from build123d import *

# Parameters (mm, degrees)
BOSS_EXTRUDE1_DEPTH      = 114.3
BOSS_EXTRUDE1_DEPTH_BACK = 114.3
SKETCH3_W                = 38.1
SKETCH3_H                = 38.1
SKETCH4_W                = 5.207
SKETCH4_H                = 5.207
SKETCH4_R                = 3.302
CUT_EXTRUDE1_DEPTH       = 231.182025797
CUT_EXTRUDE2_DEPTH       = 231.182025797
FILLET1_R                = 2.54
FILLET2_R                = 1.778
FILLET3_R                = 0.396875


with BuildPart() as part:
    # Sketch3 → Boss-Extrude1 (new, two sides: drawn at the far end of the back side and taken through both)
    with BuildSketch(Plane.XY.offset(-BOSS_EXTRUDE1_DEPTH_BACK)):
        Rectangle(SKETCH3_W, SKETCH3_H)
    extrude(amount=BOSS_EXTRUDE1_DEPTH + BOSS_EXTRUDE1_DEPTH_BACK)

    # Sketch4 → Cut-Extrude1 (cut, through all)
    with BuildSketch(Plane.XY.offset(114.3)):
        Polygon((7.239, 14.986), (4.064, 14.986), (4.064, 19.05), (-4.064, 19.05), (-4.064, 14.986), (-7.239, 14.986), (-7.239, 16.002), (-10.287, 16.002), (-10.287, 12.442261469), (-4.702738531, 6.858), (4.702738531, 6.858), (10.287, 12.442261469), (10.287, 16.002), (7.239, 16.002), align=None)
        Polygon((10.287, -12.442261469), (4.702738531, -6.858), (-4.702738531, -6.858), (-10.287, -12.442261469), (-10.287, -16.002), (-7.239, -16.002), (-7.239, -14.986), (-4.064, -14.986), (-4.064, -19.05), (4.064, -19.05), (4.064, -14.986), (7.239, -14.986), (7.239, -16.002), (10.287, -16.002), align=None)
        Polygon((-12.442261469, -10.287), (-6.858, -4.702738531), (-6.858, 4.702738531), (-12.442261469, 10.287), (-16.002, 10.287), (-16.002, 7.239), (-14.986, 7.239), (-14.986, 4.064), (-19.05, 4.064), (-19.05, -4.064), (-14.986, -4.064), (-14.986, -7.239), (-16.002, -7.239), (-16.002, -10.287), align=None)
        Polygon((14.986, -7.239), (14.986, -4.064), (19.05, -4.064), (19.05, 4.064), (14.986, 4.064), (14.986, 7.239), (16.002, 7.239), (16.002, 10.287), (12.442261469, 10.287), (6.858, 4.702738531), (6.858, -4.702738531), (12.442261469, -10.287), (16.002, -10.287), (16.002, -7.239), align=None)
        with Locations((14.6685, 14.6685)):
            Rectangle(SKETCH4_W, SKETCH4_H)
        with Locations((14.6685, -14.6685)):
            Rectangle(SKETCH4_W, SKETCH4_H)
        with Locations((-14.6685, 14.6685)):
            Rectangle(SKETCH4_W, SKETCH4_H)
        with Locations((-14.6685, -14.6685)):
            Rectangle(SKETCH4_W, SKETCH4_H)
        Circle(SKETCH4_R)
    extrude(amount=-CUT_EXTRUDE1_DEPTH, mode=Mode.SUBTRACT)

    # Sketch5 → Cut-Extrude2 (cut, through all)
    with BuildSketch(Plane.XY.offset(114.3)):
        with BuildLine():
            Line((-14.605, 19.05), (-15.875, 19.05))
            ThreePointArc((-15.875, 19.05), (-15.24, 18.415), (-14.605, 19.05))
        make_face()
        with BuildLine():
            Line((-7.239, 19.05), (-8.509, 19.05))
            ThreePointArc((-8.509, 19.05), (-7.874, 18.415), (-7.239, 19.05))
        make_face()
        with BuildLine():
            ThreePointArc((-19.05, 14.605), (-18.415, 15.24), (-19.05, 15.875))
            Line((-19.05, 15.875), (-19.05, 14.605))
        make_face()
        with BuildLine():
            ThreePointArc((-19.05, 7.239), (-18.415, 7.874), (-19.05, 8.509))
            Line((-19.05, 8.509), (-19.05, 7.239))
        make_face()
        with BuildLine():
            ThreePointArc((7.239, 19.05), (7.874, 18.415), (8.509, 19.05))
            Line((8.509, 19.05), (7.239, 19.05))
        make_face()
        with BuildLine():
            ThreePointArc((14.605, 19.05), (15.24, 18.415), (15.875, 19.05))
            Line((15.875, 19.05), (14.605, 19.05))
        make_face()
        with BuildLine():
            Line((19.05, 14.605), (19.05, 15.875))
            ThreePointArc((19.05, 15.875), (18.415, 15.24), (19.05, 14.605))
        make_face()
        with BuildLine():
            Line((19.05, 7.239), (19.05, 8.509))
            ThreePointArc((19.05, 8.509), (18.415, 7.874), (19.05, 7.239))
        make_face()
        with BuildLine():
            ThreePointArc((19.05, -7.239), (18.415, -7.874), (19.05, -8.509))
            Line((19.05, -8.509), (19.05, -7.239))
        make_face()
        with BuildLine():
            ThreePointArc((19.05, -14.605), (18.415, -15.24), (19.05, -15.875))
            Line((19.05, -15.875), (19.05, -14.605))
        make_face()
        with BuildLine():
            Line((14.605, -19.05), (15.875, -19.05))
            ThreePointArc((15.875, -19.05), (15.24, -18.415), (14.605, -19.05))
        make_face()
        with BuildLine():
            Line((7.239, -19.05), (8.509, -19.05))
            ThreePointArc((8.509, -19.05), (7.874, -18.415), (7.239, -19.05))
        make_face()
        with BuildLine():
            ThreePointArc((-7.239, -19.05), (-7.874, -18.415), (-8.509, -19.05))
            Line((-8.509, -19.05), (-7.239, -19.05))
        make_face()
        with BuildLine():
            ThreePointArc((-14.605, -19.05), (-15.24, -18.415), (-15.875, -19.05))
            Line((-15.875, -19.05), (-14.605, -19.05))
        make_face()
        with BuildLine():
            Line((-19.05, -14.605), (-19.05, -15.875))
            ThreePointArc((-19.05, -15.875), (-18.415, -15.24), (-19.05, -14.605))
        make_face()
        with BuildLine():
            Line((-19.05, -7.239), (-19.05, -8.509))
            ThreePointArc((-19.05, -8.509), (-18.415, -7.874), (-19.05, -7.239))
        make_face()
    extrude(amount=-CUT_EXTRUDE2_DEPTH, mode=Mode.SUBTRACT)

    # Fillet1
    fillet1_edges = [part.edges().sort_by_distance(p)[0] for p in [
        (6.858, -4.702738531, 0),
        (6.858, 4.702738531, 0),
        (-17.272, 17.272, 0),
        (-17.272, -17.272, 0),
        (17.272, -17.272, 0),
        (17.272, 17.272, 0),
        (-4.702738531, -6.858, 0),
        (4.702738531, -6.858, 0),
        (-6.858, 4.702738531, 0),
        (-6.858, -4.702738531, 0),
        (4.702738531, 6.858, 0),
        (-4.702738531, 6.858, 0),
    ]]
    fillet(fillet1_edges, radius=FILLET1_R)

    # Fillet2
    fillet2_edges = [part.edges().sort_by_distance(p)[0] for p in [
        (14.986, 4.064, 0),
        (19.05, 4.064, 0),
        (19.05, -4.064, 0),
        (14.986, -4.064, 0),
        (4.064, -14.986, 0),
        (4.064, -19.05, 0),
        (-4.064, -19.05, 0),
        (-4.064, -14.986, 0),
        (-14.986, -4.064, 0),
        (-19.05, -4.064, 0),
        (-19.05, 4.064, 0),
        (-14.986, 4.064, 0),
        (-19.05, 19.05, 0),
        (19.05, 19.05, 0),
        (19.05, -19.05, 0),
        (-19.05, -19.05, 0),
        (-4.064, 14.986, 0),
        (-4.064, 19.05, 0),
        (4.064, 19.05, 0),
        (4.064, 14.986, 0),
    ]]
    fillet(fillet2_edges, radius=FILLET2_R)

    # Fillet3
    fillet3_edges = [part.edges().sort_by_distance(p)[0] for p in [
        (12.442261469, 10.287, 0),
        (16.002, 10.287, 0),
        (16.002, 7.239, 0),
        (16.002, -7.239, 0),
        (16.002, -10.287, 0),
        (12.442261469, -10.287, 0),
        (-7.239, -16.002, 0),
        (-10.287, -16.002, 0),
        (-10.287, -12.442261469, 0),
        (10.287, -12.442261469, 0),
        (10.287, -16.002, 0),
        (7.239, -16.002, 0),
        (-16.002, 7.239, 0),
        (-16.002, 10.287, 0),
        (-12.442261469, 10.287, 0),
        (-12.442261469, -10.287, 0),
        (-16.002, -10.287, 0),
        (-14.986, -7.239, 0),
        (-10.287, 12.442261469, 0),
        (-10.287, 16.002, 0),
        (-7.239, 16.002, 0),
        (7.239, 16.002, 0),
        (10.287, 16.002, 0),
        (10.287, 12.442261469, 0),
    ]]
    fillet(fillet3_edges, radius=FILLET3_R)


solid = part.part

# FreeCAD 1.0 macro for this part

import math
import FreeCAD as App
import Part
import Sketcher

V = App.Vector
Q = App.Units.Quantity


def edges_at(feature, points):
    """Names of the edges that pass closest to the given points."""
    edges = feature.Shape.Edges
    near = lambda p: min(range(len(edges)), key=lambda i: edges[i].distToShape(Part.Vertex(*p))[0])
    return sorted({f"Edge{near(p) + 1}" for p in points})


def add_polygon(sketch, points):
    """Adds a closed chain of lines whose ends are joined by coincident constraints."""
    first, n = sketch.GeometryCount, len(points)
    for a, b in zip(points, points[1:] + points[:1]):
        sketch.addGeometry(Part.LineSegment(App.Vector(*a, 0), App.Vector(*b, 0)), False)
    for i in range(n):
        sketch.addConstraint(Sketcher.Constraint("Coincident", first + i, 2, first + (i + 1) % n, 1))

doc = App.newDocument("Part")
params = doc.addObject("Spreadsheet::Sheet", "Params")
for row, (alias, value) in enumerate([
    ("sketch1_width", "1.5 in"),
    ("pad1_length", "4.5 in"),
    ("pad1_length2", "4.5 in"),
    ("sketch2_diameter", "0.26 in"),
    ("sketch2_width", "0.32 in"),
    ("sketch2_width2", "0.12 in"),
    ("sketch2_width3", "0.04 in"),
    ("sketch2_width4", "0.16 in"),
    ("sketch3_radius", "0.025 in"),
    ("fillet_radius", "0.1 in"),
    ("fillet2_radius", "0.07 in"),
    ("fillet3_radius", "0.015625 in"),
], start=1):
    params.set(f"A{row}", alias)
    params.set(f"B{row}", "=" + value)
    params.setAlias(f"B{row}", alias)

body = doc.addObject("PartDesign::Body", "Body")

sketch1 = body.newObject("Sketcher::SketchObject", "Sketch")
sketch1.AttachmentSupport = (doc.getObject("XY_Plane"), [""])
sketch1.MapMode = "FlatFace"
add_polygon(sketch1, [(-19.05, 19.05), (-19.05, -19.05), (19.05, -19.05), (19.05, 19.05)])
sketch1.addConstraint(Sketcher.Constraint("Vertical", 0))
sketch1.addConstraint(Sketcher.Constraint("Horizontal", 1))
sketch1.addConstraint(Sketcher.Constraint("Vertical", 2))
sketch1.addConstraint(Sketcher.Constraint("Horizontal", 3))
sketch1.addConstraint(Sketcher.Constraint("Symmetric", 0, 2, 2, 2, -1, 1))
sketch1.addConstraint(Sketcher.Constraint("Equal", 3, 0))
sketch1.addConstraint(Sketcher.Constraint("DistanceX", 1, 1, 1, 2, Q("1.5 in")))
sketch1.setExpression("Constraints[10]", "Params.sketch1_width")
pad1 = body.newObject("PartDesign::Pad", "Pad")
pad1.Profile = sketch1
pad1.Type = "TwoLengths"
pad1.setExpression("Length", "Params.pad1_length")
pad1.setExpression("Length2", "Params.pad1_length2")

sketch2 = body.newObject("Sketcher::SketchObject", "Sketch001")
sketch2.AttachmentSupport = (doc.getObject("XY_Plane"), [""])
sketch2.MapMode = "FlatFace"
sketch2.AttachmentOffset = App.Placement(V(0, 0, 4.5 * 25.4), App.Rotation())
add_polygon(sketch2, [(7.239, 14.986), (4.064, 14.986), (4.064, 19.05), (-4.064, 19.05), (-4.064, 14.986), (-7.239, 14.986), (-7.239, 16.002), (-10.287, 16.002), (-10.287, 12.442261), (-4.702739, 6.858), (4.702739, 6.858), (10.287, 12.442261), (10.287, 16.002), (7.239, 16.002)])
add_polygon(sketch2, [(10.287, -12.442261), (4.702739, -6.858), (-4.702739, -6.858), (-10.287, -12.442261), (-10.287, -16.002), (-7.239, -16.002), (-7.239, -14.986), (-4.064, -14.986), (-4.064, -19.05), (4.064, -19.05), (4.064, -14.986), (7.239, -14.986), (7.239, -16.002), (10.287, -16.002)])
add_polygon(sketch2, [(-12.442261, -10.287), (-6.858, -4.702739), (-6.858, 4.702739), (-12.442261, 10.287), (-16.002, 10.287), (-16.002, 7.239), (-14.986, 7.239), (-14.986, 4.064), (-19.05, 4.064), (-19.05, -4.064), (-14.986, -4.064), (-14.986, -7.239), (-16.002, -7.239), (-16.002, -10.287)])
add_polygon(sketch2, [(14.986, -7.239), (14.986, -4.064), (19.05, -4.064), (19.05, 4.064), (14.986, 4.064), (14.986, 7.239), (16.002, 7.239), (16.002, 10.287), (12.442261, 10.287), (6.858, 4.702739), (6.858, -4.702739), (12.442261, -10.287), (16.002, -10.287), (16.002, -7.239)])
add_polygon(sketch2, [(12.065, 17.272), (12.065, 12.065), (17.272, 12.065), (17.272, 17.272)])
add_polygon(sketch2, [(12.065, -12.065), (12.065, -17.272), (17.272, -17.272), (17.272, -12.065)])
add_polygon(sketch2, [(-17.272, 17.272), (-17.272, 12.065), (-12.065, 12.065), (-12.065, 17.272)])
add_polygon(sketch2, [(-17.272, -12.065), (-17.272, -17.272), (-12.065, -17.272), (-12.065, -12.065)])
sketch2.addGeometry(Part.Circle(V(0, 0, 0), V(0, 0, 1), 3.302), False)
sketch2.addConstraint(Sketcher.Constraint("Horizontal", 0))
sketch2.addConstraint(Sketcher.Constraint("Vertical", 1))
sketch2.addConstraint(Sketcher.Constraint("Horizontal", 2))
sketch2.addConstraint(Sketcher.Constraint("Vertical", 3))
sketch2.addConstraint(Sketcher.Constraint("Horizontal", 4))
sketch2.addConstraint(Sketcher.Constraint("Vertical", 5))
sketch2.addConstraint(Sketcher.Constraint("Horizontal", 6))
sketch2.addConstraint(Sketcher.Constraint("Vertical", 7))
sketch2.addConstraint(Sketcher.Constraint("Horizontal", 9))
sketch2.addConstraint(Sketcher.Constraint("Vertical", 11))
sketch2.addConstraint(Sketcher.Constraint("Horizontal", 12))
sketch2.addConstraint(Sketcher.Constraint("Vertical", 13))
sketch2.addConstraint(Sketcher.Constraint("Horizontal", 15))
sketch2.addConstraint(Sketcher.Constraint("Vertical", 17))
sketch2.addConstraint(Sketcher.Constraint("Horizontal", 18))
sketch2.addConstraint(Sketcher.Constraint("Vertical", 19))
sketch2.addConstraint(Sketcher.Constraint("Horizontal", 20))
sketch2.addConstraint(Sketcher.Constraint("Vertical", 21))
sketch2.addConstraint(Sketcher.Constraint("Horizontal", 22))
sketch2.addConstraint(Sketcher.Constraint("Vertical", 23))
sketch2.addConstraint(Sketcher.Constraint("Horizontal", 24))
sketch2.addConstraint(Sketcher.Constraint("Vertical", 25))
sketch2.addConstraint(Sketcher.Constraint("Horizontal", 26))
sketch2.addConstraint(Sketcher.Constraint("Vertical", 27))
sketch2.addConstraint(Sketcher.Constraint("Vertical", 29))
sketch2.addConstraint(Sketcher.Constraint("Horizontal", 31))
sketch2.addConstraint(Sketcher.Constraint("Vertical", 32))
sketch2.addConstraint(Sketcher.Constraint("Horizontal", 33))
sketch2.addConstraint(Sketcher.Constraint("Vertical", 34))
sketch2.addConstraint(Sketcher.Constraint("Horizontal", 35))
sketch2.addConstraint(Sketcher.Constraint("Vertical", 36))
sketch2.addConstraint(Sketcher.Constraint("Horizontal", 37))
sketch2.addConstraint(Sketcher.Constraint("Vertical", 38))
sketch2.addConstraint(Sketcher.Constraint("Horizontal", 39))
sketch2.addConstraint(Sketcher.Constraint("Vertical", 40))
sketch2.addConstraint(Sketcher.Constraint("Horizontal", 41))
sketch2.addConstraint(Sketcher.Constraint("Vertical", 42))
sketch2.addConstraint(Sketcher.Constraint("Horizontal", 43))
sketch2.addConstraint(Sketcher.Constraint("Vertical", 44))
sketch2.addConstraint(Sketcher.Constraint("Horizontal", 45))
sketch2.addConstraint(Sketcher.Constraint("Vertical", 46))
sketch2.addConstraint(Sketcher.Constraint("Horizontal", 47))
sketch2.addConstraint(Sketcher.Constraint("Vertical", 48))
sketch2.addConstraint(Sketcher.Constraint("Horizontal", 49))
sketch2.addConstraint(Sketcher.Constraint("Vertical", 51))
sketch2.addConstraint(Sketcher.Constraint("Horizontal", 53))
sketch2.addConstraint(Sketcher.Constraint("Vertical", 54))
sketch2.addConstraint(Sketcher.Constraint("Horizontal", 55))
sketch2.addConstraint(Sketcher.Constraint("Vertical", 56))
sketch2.addConstraint(Sketcher.Constraint("Horizontal", 57))
sketch2.addConstraint(Sketcher.Constraint("Vertical", 58))
sketch2.addConstraint(Sketcher.Constraint("Horizontal", 59))
sketch2.addConstraint(Sketcher.Constraint("Vertical", 60))
sketch2.addConstraint(Sketcher.Constraint("Horizontal", 61))
sketch2.addConstraint(Sketcher.Constraint("Vertical", 62))
sketch2.addConstraint(Sketcher.Constraint("Horizontal", 63))
sketch2.addConstraint(Sketcher.Constraint("Vertical", 64))
sketch2.addConstraint(Sketcher.Constraint("Horizontal", 65))
sketch2.addConstraint(Sketcher.Constraint("Vertical", 66))
sketch2.addConstraint(Sketcher.Constraint("Horizontal", 67))
sketch2.addConstraint(Sketcher.Constraint("Vertical", 68))
sketch2.addConstraint(Sketcher.Constraint("Horizontal", 69))
sketch2.addConstraint(Sketcher.Constraint("Vertical", 70))
sketch2.addConstraint(Sketcher.Constraint("Horizontal", 71))
sketch2.addConstraint(Sketcher.Constraint("Coincident", 72, 3, -1, 1))
sketch2.addConstraint(Sketcher.Constraint("Symmetric", 8, 2, 14, 2, -1, 1))
sketch2.addConstraint(Sketcher.Constraint("Symmetric", 10, 2, 16, 2, -1, 1))
sketch2.addConstraint(Sketcher.Constraint("Symmetric", 12, 2, 18, 2, -1, 1))
sketch2.addConstraint(Sketcher.Constraint("Symmetric", 0, 2, 20, 2, -1, 1))
sketch2.addConstraint(Sketcher.Constraint("Symmetric", 2, 2, 22, 2, -1, 1))
sketch2.addConstraint(Sketcher.Constraint("Symmetric", 4, 2, 24, 2, -1, 1))
sketch2.addConstraint(Sketcher.Constraint("Symmetric", 6, 2, 26, 2, -1, 1))
sketch2.addConstraint(Sketcher.Constraint("Symmetric", 34, 2, 42, 2, -1, 1))
sketch2.addConstraint(Sketcher.Constraint("Symmetric", 36, 2, 44, 2, -1, 1))
sketch2.addConstraint(Sketcher.Constraint("Symmetric", 38, 2, 46, 2, -1, 1))
sketch2.addConstraint(Sketcher.Constraint("Symmetric", 40, 2, 48, 2, -1, 1))
sketch2.addConstraint(Sketcher.Constraint("Symmetric", 28, 2, 50, 2, -1, 1))
sketch2.addConstraint(Sketcher.Constraint("Symmetric", 30, 2, 52, 2, -1, 1))
sketch2.addConstraint(Sketcher.Constraint("Symmetric", 32, 2, 54, 2, -1, 1))
sketch2.addConstraint(Sketcher.Constraint("Symmetric", 62, 2, 64, 2, -1, 1))
sketch2.addConstraint(Sketcher.Constraint("Symmetric", 60, 2, 66, 2, -1, 1))
sketch2.addConstraint(Sketcher.Constraint("Symmetric", 58, 2, 68, 2, -1, 1))
sketch2.addConstraint(Sketcher.Constraint("Symmetric", 56, 2, 70, 2, -1, 1))
sketch2.addConstraint(Sketcher.Constraint("Symmetric", 0, 2, 3, 2, -2))
sketch2.addConstraint(Sketcher.Constraint("Symmetric", 7, 2, 10, 2, -2))
sketch2.addConstraint(Sketcher.Constraint("Symmetric", 5, 2, 12, 2, -2))
sketch2.addConstraint(Sketcher.Constraint("Symmetric", 37, 2, 42, 2, -2))
sketch2.addConstraint(Sketcher.Constraint("Symmetric", 32, 2, 47, 2, -2))
sketch2.addConstraint(Sketcher.Constraint("Symmetric", 30, 2, 49, 2, -2))
sketch2.addConstraint(Sketcher.Constraint("Symmetric", 57, 2, 64, 2, -2))
sketch2.addConstraint(Sketcher.Constraint("Symmetric", 59, 2, 66, 2, -2))
sketch2.addConstraint(Sketcher.Constraint("Perpendicular", 8, 10))
sketch2.addConstraint(Sketcher.Constraint("Perpendicular", 10, 14))
sketch2.addConstraint(Sketcher.Constraint("Perpendicular", 14, 16))
sketch2.addConstraint(Sketcher.Constraint("Parallel", 16, 28))
sketch2.addConstraint(Sketcher.Constraint("Perpendicular", 28, 30))
sketch2.addConstraint(Sketcher.Constraint("Perpendicular", 30, 50))
sketch2.addConstraint(Sketcher.Constraint("Perpendicular", 50, 52))
sketch2.addConstraint(Sketcher.Constraint("Horizontal", 29, 2, 50, 2))
sketch2.addConstraint(Sketcher.Constraint("Equal", 45, 1))
sketch2.addConstraint(Sketcher.Constraint("Equal", 55, 5))
sketch2.addConstraint(Sketcher.Constraint("Equal", 53, 7))
sketch2.addConstraint(Sketcher.Constraint("Equal", 15, 29))
sketch2.addConstraint(Sketcher.Constraint("Equal", 26, 32))
sketch2.addConstraint(Sketcher.Constraint("Equal", 24, 34))
sketch2.addConstraint(Sketcher.Constraint("Equal", 22, 36))
sketch2.addConstraint(Sketcher.Constraint("Equal", 71, 56))
sketch2.addConstraint(Sketcher.Constraint("Diameter", 72, Q("0.26 in")))
sketch2.addConstraint(Sketcher.Constraint("DistanceX", 2, 2, 2, 1, Q("0.32 in")))
sketch2.addConstraint(Sketcher.Constraint("DistanceX", 6, 2, 6, 1, Q("0.12 in")))
sketch2.addConstraint(Sketcher.Constraint("DistanceX", 33, 1, 33, 2, Q("0.04 in")))
sketch2.addConstraint(Sketcher.Constraint("DistanceX", 35, 2, 35, 1, Q("0.16 in")))
sketch2.addConstraint(Sketcher.Constraint("DistanceX", 0, 2, 0, 1, Q("0.125 in")))
sketch2.addConstraint(Sketcher.Constraint("DistanceX", 57, 1, 57, 2, Q("0.205 in")))
sketch2.addConstraint(Sketcher.Constraint("DistanceY", -1, 1, 0, 2, Q("0.59 in")))
sketch2.addConstraint(Sketcher.Constraint("DistanceY", -1, 1, 8, 2, Q("0.27 in")))
sketch2.addConstraint(Sketcher.Constraint("DistanceX", 28, 2, -1, 1, Q("0.27 in")))
sketch2.addConstraint(Sketcher.Constraint("DistanceX", -1, 1, 57, 2, Q("0.68 in")))
sketch2.addConstraint(Sketcher.Constraint("DistanceY", -1, 1, 58, 2, Q("0.68 in")))
sketch2.addConstraint(Sketcher.Constraint("DistanceX", 31, 2, 31, 1, 3.559739))
sketch2.setExpression("Constraints[179]", "Params.sketch2_diameter")
sketch2.setExpression("Constraints[180]", "Params.sketch2_width")
sketch2.setExpression("Constraints[181]", "Params.sketch2_width2")
sketch2.setExpression("Constraints[182]", "Params.sketch2_width3")
sketch2.setExpression("Constraints[183]", "Params.sketch2_width4")
pocket1 = body.newObject("PartDesign::Pocket", "Pocket")
pocket1.Profile = sketch2
pocket1.Type = "ThroughAll"

sketch3 = body.newObject("Sketcher::SketchObject", "Sketch002")
sketch3.AttachmentSupport = (doc.getObject("XY_Plane"), [""])
sketch3.MapMode = "FlatFace"
sketch3.AttachmentOffset = App.Placement(V(0, 0, 4.5 * 25.4), App.Rotation())
sketch3.addGeometry(Part.LineSegment(V(-14.605, 19.05, 0), V(-15.875, 19.05, 0)), False)
sketch3.addGeometry(Part.ArcOfCircle(Part.Circle(V(-15.24, 19.05, 0), V(0, 0, 1), 0.635), math.radians(180), math.radians(360)), False)
sketch3.addGeometry(Part.LineSegment(V(-7.239, 19.05, 0), V(-8.509, 19.05, 0)), False)
sketch3.addGeometry(Part.ArcOfCircle(Part.Circle(V(-7.874, 19.05, 0), V(0, 0, 1), 0.635), math.radians(180), math.radians(360)), False)
sketch3.addGeometry(Part.ArcOfCircle(Part.Circle(V(-19.05, 15.24, 0), V(0, 0, 1), 0.635), math.radians(-90), math.radians(90)), False)
sketch3.addGeometry(Part.LineSegment(V(-19.05, 15.875, 0), V(-19.05, 14.605, 0)), False)
sketch3.addGeometry(Part.ArcOfCircle(Part.Circle(V(-19.05, 7.874, 0), V(0, 0, 1), 0.635), math.radians(-90), math.radians(90)), False)
sketch3.addGeometry(Part.LineSegment(V(-19.05, 8.509, 0), V(-19.05, 7.239, 0)), False)
sketch3.addGeometry(Part.ArcOfCircle(Part.Circle(V(7.874, 19.05, 0), V(0, 0, 1), 0.635), math.radians(180), math.radians(360)), False)
sketch3.addGeometry(Part.LineSegment(V(8.509, 19.05, 0), V(7.239, 19.05, 0)), False)
sketch3.addGeometry(Part.ArcOfCircle(Part.Circle(V(15.24, 19.05, 0), V(0, 0, 1), 0.635), math.radians(180), math.radians(360)), False)
sketch3.addGeometry(Part.LineSegment(V(15.875, 19.05, 0), V(14.605, 19.05, 0)), False)
sketch3.addGeometry(Part.LineSegment(V(19.05, 14.605, 0), V(19.05, 15.875, 0)), False)
sketch3.addGeometry(Part.ArcOfCircle(Part.Circle(V(19.05, 15.24, 0), V(0, 0, 1), 0.635), math.radians(90), math.radians(270)), False)
sketch3.addGeometry(Part.LineSegment(V(19.05, 7.239, 0), V(19.05, 8.509, 0)), False)
sketch3.addGeometry(Part.ArcOfCircle(Part.Circle(V(19.05, 7.874, 0), V(0, 0, 1), 0.635), math.radians(90), math.radians(270)), False)
sketch3.addGeometry(Part.ArcOfCircle(Part.Circle(V(19.05, -7.874, 0), V(0, 0, 1), 0.635), math.radians(90), math.radians(270)), False)
sketch3.addGeometry(Part.LineSegment(V(19.05, -8.509, 0), V(19.05, -7.239, 0)), False)
sketch3.addGeometry(Part.ArcOfCircle(Part.Circle(V(19.05, -15.24, 0), V(0, 0, 1), 0.635), math.radians(90), math.radians(270)), False)
sketch3.addGeometry(Part.LineSegment(V(19.05, -15.875, 0), V(19.05, -14.605, 0)), False)
sketch3.addGeometry(Part.LineSegment(V(14.605, -19.05, 0), V(15.875, -19.05, 0)), False)
sketch3.addGeometry(Part.ArcOfCircle(Part.Circle(V(15.24, -19.05, 0), V(0, 0, 1), 0.635), math.radians(0), math.radians(180)), False)
sketch3.addGeometry(Part.LineSegment(V(7.239, -19.05, 0), V(8.509, -19.05, 0)), False)
sketch3.addGeometry(Part.ArcOfCircle(Part.Circle(V(7.874, -19.05, 0), V(0, 0, 1), 0.635), math.radians(0), math.radians(180)), False)
sketch3.addGeometry(Part.ArcOfCircle(Part.Circle(V(-7.874, -19.05, 0), V(0, 0, 1), 0.635), math.radians(0), math.radians(180)), False)
sketch3.addGeometry(Part.LineSegment(V(-8.509, -19.05, 0), V(-7.239, -19.05, 0)), False)
sketch3.addGeometry(Part.ArcOfCircle(Part.Circle(V(-15.24, -19.05, 0), V(0, 0, 1), 0.635), math.radians(0), math.radians(180)), False)
sketch3.addGeometry(Part.LineSegment(V(-15.875, -19.05, 0), V(-14.605, -19.05, 0)), False)
sketch3.addGeometry(Part.LineSegment(V(-19.05, -14.605, 0), V(-19.05, -15.875, 0)), False)
sketch3.addGeometry(Part.ArcOfCircle(Part.Circle(V(-19.05, -15.24, 0), V(0, 0, 1), 0.635), math.radians(-90), math.radians(90)), False)
sketch3.addGeometry(Part.LineSegment(V(-19.05, -7.239, 0), V(-19.05, -8.509, 0)), False)
sketch3.addGeometry(Part.ArcOfCircle(Part.Circle(V(-19.05, -7.874, 0), V(0, 0, 1), 0.635), math.radians(-90), math.radians(90)), False)
sketch3.addConstraint(Sketcher.Constraint("Coincident", 0, 1, 1, 2))
sketch3.addConstraint(Sketcher.Constraint("Coincident", 1, 1, 0, 2))
sketch3.addConstraint(Sketcher.Constraint("Coincident", 2, 1, 3, 2))
sketch3.addConstraint(Sketcher.Constraint("Coincident", 3, 1, 2, 2))
sketch3.addConstraint(Sketcher.Constraint("Coincident", 4, 1, 5, 2))
sketch3.addConstraint(Sketcher.Constraint("Coincident", 5, 1, 4, 2))
sketch3.addConstraint(Sketcher.Constraint("Coincident", 6, 1, 7, 2))
sketch3.addConstraint(Sketcher.Constraint("Coincident", 7, 1, 6, 2))
sketch3.addConstraint(Sketcher.Constraint("Coincident", 8, 1, 9, 2))
sketch3.addConstraint(Sketcher.Constraint("Coincident", 9, 1, 8, 2))
sketch3.addConstraint(Sketcher.Constraint("Coincident", 10, 1, 11, 2))
sketch3.addConstraint(Sketcher.Constraint("Coincident", 11, 1, 10, 2))
sketch3.addConstraint(Sketcher.Constraint("Coincident", 12, 1, 13, 2))
sketch3.addConstraint(Sketcher.Constraint("Coincident", 13, 1, 12, 2))
sketch3.addConstraint(Sketcher.Constraint("Coincident", 14, 1, 15, 2))
sketch3.addConstraint(Sketcher.Constraint("Coincident", 15, 1, 14, 2))
sketch3.addConstraint(Sketcher.Constraint("Coincident", 16, 1, 17, 2))
sketch3.addConstraint(Sketcher.Constraint("Coincident", 17, 1, 16, 2))
sketch3.addConstraint(Sketcher.Constraint("Coincident", 18, 1, 19, 2))
sketch3.addConstraint(Sketcher.Constraint("Coincident", 19, 1, 18, 2))
sketch3.addConstraint(Sketcher.Constraint("Coincident", 20, 1, 21, 2))
sketch3.addConstraint(Sketcher.Constraint("Coincident", 21, 1, 20, 2))
sketch3.addConstraint(Sketcher.Constraint("Coincident", 22, 1, 23, 2))
sketch3.addConstraint(Sketcher.Constraint("Coincident", 23, 1, 22, 2))
sketch3.addConstraint(Sketcher.Constraint("Coincident", 24, 1, 25, 2))
sketch3.addConstraint(Sketcher.Constraint("Coincident", 25, 1, 24, 2))
sketch3.addConstraint(Sketcher.Constraint("Coincident", 26, 1, 27, 2))
sketch3.addConstraint(Sketcher.Constraint("Coincident", 27, 1, 26, 2))
sketch3.addConstraint(Sketcher.Constraint("Coincident", 28, 1, 29, 2))
sketch3.addConstraint(Sketcher.Constraint("Coincident", 29, 1, 28, 2))
sketch3.addConstraint(Sketcher.Constraint("Coincident", 30, 1, 31, 2))
sketch3.addConstraint(Sketcher.Constraint("Coincident", 31, 1, 30, 2))
sketch3.addConstraint(Sketcher.Constraint("Horizontal", 0))
sketch3.addConstraint(Sketcher.Constraint("Horizontal", 2))
sketch3.addConstraint(Sketcher.Constraint("Vertical", 5))
sketch3.addConstraint(Sketcher.Constraint("Vertical", 7))
sketch3.addConstraint(Sketcher.Constraint("Horizontal", 9))
sketch3.addConstraint(Sketcher.Constraint("Horizontal", 11))
sketch3.addConstraint(Sketcher.Constraint("Vertical", 12))
sketch3.addConstraint(Sketcher.Constraint("Vertical", 14))
sketch3.addConstraint(Sketcher.Constraint("Vertical", 17))
sketch3.addConstraint(Sketcher.Constraint("Vertical", 19))
sketch3.addConstraint(Sketcher.Constraint("Horizontal", 20))
sketch3.addConstraint(Sketcher.Constraint("Horizontal", 22))
sketch3.addConstraint(Sketcher.Constraint("Horizontal", 25))
sketch3.addConstraint(Sketcher.Constraint("Horizontal", 27))
sketch3.addConstraint(Sketcher.Constraint("Vertical", 28))
sketch3.addConstraint(Sketcher.Constraint("Vertical", 30))
sketch3.addConstraint(Sketcher.Constraint("Equal", 1, 3))
sketch3.addConstraint(Sketcher.Constraint("Equal", 3, 4))
sketch3.addConstraint(Sketcher.Constraint("Equal", 4, 6))
sketch3.addConstraint(Sketcher.Constraint("Equal", 6, 8))
sketch3.addConstraint(Sketcher.Constraint("Equal", 8, 10))
sketch3.addConstraint(Sketcher.Constraint("Equal", 10, 13))
sketch3.addConstraint(Sketcher.Constraint("Equal", 13, 15))
sketch3.addConstraint(Sketcher.Constraint("Equal", 15, 16))
sketch3.addConstraint(Sketcher.Constraint("Equal", 16, 18))
sketch3.addConstraint(Sketcher.Constraint("Equal", 18, 21))
sketch3.addConstraint(Sketcher.Constraint("Equal", 21, 23))
sketch3.addConstraint(Sketcher.Constraint("Equal", 23, 24))
sketch3.addConstraint(Sketcher.Constraint("Equal", 24, 26))
sketch3.addConstraint(Sketcher.Constraint("Equal", 26, 29))
sketch3.addConstraint(Sketcher.Constraint("Equal", 29, 31))
sketch3.addConstraint(Sketcher.Constraint("Symmetric", 6, 3, 16, 3, -1, 1))
sketch3.addConstraint(Sketcher.Constraint("Symmetric", 4, 3, 18, 3, -1, 1))
sketch3.addConstraint(Sketcher.Constraint("Symmetric", 1, 3, 21, 3, -1, 1))
sketch3.addConstraint(Sketcher.Constraint("Symmetric", 3, 3, 23, 3, -1, 1))
sketch3.addConstraint(Sketcher.Constraint("Symmetric", 8, 3, 24, 3, -1, 1))
sketch3.addConstraint(Sketcher.Constraint("Symmetric", 10, 3, 26, 3, -1, 1))
sketch3.addConstraint(Sketcher.Constraint("Symmetric", 13, 3, 29, 3, -1, 1))
sketch3.addConstraint(Sketcher.Constraint("Symmetric", 15, 3, 31, 3, -1, 1))
sketch3.addConstraint(Sketcher.Constraint("Symmetric", 3, 3, 8, 3, -2))
sketch3.addConstraint(Sketcher.Constraint("Symmetric", 1, 3, 10, 3, -2))
sketch3.addConstraint(Sketcher.Constraint("Symmetric", 4, 3, 13, 3, -2))
sketch3.addConstraint(Sketcher.Constraint("Symmetric", 6, 3, 15, 3, -2))
sketch3.addConstraint(Sketcher.Constraint("Horizontal", 1, 3, 3, 3))
sketch3.addConstraint(Sketcher.Constraint("Horizontal", 10, 3, 0, 1))
sketch3.addConstraint(Sketcher.Constraint("Horizontal", 1, 1, 2, 1))
sketch3.addConstraint(Sketcher.Constraint("Horizontal", 3, 1, 8, 1))
sketch3.addConstraint(Sketcher.Constraint("Horizontal", 9, 1, 10, 1))
sketch3.addConstraint(Sketcher.Constraint("Horizontal", 26, 3, 20, 1))
sketch3.addConstraint(Sketcher.Constraint("Horizontal", 21, 1, 22, 1))
sketch3.addConstraint(Sketcher.Constraint("Horizontal", 23, 1, 24, 1))
sketch3.addConstraint(Sketcher.Constraint("Horizontal", 25, 1, 26, 1))
sketch3.addConstraint(Sketcher.Constraint("Vertical", 4, 3, 6, 3))
sketch3.addConstraint(Sketcher.Constraint("Vertical", 31, 3, 4, 1))
sketch3.addConstraint(Sketcher.Constraint("Vertical", 5, 1, 6, 1))
sketch3.addConstraint(Sketcher.Constraint("Vertical", 18, 3, 12, 1))
sketch3.addConstraint(Sketcher.Constraint("Vertical", 13, 1, 14, 1))
sketch3.addConstraint(Sketcher.Constraint("Vertical", 15, 1, 16, 1))
sketch3.addConstraint(Sketcher.Constraint("Vertical", 17, 1, 18, 1))
sketch3.addConstraint(Sketcher.Constraint("Vertical", 7, 1, 28, 1))
sketch3.addConstraint(Sketcher.Constraint("Vertical", 29, 1, 30, 1))
sketch3.addConstraint(Sketcher.Constraint("Radius", 1, Q("0.025 in")))
sketch3.addConstraint(Sketcher.Constraint("DistanceX", 1, 3, -1, 1, Q("0.6 in")))
sketch3.addConstraint(Sketcher.Constraint("DistanceY", -1, 1, 4, 3, Q("0.6 in")))
sketch3.addConstraint(Sketcher.Constraint("DistanceX", 4, 3, 13, 3, Q("1.5 in")))
sketch3.addConstraint(Sketcher.Constraint("DistanceY", 21, 3, 10, 3, Q("1.5 in")))
sketch3.addConstraint(Sketcher.Constraint("DistanceX", 3, 3, -1, 1, Q("0.31 in")))
sketch3.addConstraint(Sketcher.Constraint("DistanceY", -1, 1, 6, 3, Q("0.31 in")))
sketch3.setExpression("Constraints[93]", "Params.sketch3_radius")
pocket2 = body.newObject("PartDesign::Pocket", "Pocket001")
pocket2.Profile = sketch3
pocket2.Type = "ThroughAll"
doc.recompute()

fillet = body.newObject("PartDesign::Fillet", "Fillet")
fillet.Base = (pocket2, edges_at(pocket2, [
    (6.858, -4.703, 0),
    (6.858, 4.703, 0),
    (-17.272, 17.272, 0),
    (-17.272, -17.272, 0),
    (17.272, -17.272, 0),
    (17.272, 17.272, 0),
    (-4.703, -6.858, 0),
    (4.703, -6.858, 0),
    (-6.858, 4.703, 0),
    (-6.858, -4.703, 0),
    (4.703, 6.858, 0),
    (-4.703, 6.858, 0),
]))
fillet.setExpression("Radius", "Params.fillet_radius")
doc.recompute()

fillet2 = body.newObject("PartDesign::Fillet", "Fillet001")
fillet2.Base = (fillet, edges_at(fillet, [
    (14.986, 4.064, 0),
    (19.05, 4.064, 0),
    (19.05, -4.064, 0),
    (14.986, -4.064, 0),
    (4.064, -14.986, 0),
    (4.064, -19.05, 0),
    (-4.064, -19.05, 0),
    (-4.064, -14.986, 0),
    (-14.986, -4.064, 0),
    (-19.05, -4.064, 0),
    (-19.05, 4.064, 0),
    (-14.986, 4.064, 0),
    (-19.05, 19.05, 0),
    (19.05, 19.05, 0),
    (19.05, -19.05, 0),
    (-19.05, -19.05, 0),
    (-4.064, 14.986, 0),
    (-4.064, 19.05, 0),
    (4.064, 19.05, 0),
    (4.064, 14.986, 0),
]))
fillet2.setExpression("Radius", "Params.fillet2_radius")
doc.recompute()

fillet3 = body.newObject("PartDesign::Fillet", "Fillet002")
fillet3.Base = (fillet2, edges_at(fillet2, [
    (12.442, 10.287, 0),
    (16.002, 10.287, 0),
    (16.002, 7.239, 0),
    (16.002, -7.239, 0),
    (16.002, -10.287, 0),
    (12.442, -10.287, 0),
    (-7.239, -16.002, 0),
    (-10.287, -16.002, 0),
    (-10.287, -12.442, 0),
    (10.287, -12.442, 0),
    (10.287, -16.002, 0),
    (7.239, -16.002, 0),
    (-16.002, 7.239, 0),
    (-16.002, 10.287, 0),
    (-12.442, 10.287, 0),
    (-12.442, -10.287, 0),
    (-16.002, -10.287, 0),
    (-14.986, -7.239, 0),
    (-10.287, 12.442, 0),
    (-10.287, 16.002, 0),
    (-7.239, 16.002, 0),
    (7.239, 16.002, 0),
    (10.287, 16.002, 0),
    (10.287, 12.442, 0),
]))
fillet3.setExpression("Radius", "Params.fillet3_radius")

doc.recompute()
